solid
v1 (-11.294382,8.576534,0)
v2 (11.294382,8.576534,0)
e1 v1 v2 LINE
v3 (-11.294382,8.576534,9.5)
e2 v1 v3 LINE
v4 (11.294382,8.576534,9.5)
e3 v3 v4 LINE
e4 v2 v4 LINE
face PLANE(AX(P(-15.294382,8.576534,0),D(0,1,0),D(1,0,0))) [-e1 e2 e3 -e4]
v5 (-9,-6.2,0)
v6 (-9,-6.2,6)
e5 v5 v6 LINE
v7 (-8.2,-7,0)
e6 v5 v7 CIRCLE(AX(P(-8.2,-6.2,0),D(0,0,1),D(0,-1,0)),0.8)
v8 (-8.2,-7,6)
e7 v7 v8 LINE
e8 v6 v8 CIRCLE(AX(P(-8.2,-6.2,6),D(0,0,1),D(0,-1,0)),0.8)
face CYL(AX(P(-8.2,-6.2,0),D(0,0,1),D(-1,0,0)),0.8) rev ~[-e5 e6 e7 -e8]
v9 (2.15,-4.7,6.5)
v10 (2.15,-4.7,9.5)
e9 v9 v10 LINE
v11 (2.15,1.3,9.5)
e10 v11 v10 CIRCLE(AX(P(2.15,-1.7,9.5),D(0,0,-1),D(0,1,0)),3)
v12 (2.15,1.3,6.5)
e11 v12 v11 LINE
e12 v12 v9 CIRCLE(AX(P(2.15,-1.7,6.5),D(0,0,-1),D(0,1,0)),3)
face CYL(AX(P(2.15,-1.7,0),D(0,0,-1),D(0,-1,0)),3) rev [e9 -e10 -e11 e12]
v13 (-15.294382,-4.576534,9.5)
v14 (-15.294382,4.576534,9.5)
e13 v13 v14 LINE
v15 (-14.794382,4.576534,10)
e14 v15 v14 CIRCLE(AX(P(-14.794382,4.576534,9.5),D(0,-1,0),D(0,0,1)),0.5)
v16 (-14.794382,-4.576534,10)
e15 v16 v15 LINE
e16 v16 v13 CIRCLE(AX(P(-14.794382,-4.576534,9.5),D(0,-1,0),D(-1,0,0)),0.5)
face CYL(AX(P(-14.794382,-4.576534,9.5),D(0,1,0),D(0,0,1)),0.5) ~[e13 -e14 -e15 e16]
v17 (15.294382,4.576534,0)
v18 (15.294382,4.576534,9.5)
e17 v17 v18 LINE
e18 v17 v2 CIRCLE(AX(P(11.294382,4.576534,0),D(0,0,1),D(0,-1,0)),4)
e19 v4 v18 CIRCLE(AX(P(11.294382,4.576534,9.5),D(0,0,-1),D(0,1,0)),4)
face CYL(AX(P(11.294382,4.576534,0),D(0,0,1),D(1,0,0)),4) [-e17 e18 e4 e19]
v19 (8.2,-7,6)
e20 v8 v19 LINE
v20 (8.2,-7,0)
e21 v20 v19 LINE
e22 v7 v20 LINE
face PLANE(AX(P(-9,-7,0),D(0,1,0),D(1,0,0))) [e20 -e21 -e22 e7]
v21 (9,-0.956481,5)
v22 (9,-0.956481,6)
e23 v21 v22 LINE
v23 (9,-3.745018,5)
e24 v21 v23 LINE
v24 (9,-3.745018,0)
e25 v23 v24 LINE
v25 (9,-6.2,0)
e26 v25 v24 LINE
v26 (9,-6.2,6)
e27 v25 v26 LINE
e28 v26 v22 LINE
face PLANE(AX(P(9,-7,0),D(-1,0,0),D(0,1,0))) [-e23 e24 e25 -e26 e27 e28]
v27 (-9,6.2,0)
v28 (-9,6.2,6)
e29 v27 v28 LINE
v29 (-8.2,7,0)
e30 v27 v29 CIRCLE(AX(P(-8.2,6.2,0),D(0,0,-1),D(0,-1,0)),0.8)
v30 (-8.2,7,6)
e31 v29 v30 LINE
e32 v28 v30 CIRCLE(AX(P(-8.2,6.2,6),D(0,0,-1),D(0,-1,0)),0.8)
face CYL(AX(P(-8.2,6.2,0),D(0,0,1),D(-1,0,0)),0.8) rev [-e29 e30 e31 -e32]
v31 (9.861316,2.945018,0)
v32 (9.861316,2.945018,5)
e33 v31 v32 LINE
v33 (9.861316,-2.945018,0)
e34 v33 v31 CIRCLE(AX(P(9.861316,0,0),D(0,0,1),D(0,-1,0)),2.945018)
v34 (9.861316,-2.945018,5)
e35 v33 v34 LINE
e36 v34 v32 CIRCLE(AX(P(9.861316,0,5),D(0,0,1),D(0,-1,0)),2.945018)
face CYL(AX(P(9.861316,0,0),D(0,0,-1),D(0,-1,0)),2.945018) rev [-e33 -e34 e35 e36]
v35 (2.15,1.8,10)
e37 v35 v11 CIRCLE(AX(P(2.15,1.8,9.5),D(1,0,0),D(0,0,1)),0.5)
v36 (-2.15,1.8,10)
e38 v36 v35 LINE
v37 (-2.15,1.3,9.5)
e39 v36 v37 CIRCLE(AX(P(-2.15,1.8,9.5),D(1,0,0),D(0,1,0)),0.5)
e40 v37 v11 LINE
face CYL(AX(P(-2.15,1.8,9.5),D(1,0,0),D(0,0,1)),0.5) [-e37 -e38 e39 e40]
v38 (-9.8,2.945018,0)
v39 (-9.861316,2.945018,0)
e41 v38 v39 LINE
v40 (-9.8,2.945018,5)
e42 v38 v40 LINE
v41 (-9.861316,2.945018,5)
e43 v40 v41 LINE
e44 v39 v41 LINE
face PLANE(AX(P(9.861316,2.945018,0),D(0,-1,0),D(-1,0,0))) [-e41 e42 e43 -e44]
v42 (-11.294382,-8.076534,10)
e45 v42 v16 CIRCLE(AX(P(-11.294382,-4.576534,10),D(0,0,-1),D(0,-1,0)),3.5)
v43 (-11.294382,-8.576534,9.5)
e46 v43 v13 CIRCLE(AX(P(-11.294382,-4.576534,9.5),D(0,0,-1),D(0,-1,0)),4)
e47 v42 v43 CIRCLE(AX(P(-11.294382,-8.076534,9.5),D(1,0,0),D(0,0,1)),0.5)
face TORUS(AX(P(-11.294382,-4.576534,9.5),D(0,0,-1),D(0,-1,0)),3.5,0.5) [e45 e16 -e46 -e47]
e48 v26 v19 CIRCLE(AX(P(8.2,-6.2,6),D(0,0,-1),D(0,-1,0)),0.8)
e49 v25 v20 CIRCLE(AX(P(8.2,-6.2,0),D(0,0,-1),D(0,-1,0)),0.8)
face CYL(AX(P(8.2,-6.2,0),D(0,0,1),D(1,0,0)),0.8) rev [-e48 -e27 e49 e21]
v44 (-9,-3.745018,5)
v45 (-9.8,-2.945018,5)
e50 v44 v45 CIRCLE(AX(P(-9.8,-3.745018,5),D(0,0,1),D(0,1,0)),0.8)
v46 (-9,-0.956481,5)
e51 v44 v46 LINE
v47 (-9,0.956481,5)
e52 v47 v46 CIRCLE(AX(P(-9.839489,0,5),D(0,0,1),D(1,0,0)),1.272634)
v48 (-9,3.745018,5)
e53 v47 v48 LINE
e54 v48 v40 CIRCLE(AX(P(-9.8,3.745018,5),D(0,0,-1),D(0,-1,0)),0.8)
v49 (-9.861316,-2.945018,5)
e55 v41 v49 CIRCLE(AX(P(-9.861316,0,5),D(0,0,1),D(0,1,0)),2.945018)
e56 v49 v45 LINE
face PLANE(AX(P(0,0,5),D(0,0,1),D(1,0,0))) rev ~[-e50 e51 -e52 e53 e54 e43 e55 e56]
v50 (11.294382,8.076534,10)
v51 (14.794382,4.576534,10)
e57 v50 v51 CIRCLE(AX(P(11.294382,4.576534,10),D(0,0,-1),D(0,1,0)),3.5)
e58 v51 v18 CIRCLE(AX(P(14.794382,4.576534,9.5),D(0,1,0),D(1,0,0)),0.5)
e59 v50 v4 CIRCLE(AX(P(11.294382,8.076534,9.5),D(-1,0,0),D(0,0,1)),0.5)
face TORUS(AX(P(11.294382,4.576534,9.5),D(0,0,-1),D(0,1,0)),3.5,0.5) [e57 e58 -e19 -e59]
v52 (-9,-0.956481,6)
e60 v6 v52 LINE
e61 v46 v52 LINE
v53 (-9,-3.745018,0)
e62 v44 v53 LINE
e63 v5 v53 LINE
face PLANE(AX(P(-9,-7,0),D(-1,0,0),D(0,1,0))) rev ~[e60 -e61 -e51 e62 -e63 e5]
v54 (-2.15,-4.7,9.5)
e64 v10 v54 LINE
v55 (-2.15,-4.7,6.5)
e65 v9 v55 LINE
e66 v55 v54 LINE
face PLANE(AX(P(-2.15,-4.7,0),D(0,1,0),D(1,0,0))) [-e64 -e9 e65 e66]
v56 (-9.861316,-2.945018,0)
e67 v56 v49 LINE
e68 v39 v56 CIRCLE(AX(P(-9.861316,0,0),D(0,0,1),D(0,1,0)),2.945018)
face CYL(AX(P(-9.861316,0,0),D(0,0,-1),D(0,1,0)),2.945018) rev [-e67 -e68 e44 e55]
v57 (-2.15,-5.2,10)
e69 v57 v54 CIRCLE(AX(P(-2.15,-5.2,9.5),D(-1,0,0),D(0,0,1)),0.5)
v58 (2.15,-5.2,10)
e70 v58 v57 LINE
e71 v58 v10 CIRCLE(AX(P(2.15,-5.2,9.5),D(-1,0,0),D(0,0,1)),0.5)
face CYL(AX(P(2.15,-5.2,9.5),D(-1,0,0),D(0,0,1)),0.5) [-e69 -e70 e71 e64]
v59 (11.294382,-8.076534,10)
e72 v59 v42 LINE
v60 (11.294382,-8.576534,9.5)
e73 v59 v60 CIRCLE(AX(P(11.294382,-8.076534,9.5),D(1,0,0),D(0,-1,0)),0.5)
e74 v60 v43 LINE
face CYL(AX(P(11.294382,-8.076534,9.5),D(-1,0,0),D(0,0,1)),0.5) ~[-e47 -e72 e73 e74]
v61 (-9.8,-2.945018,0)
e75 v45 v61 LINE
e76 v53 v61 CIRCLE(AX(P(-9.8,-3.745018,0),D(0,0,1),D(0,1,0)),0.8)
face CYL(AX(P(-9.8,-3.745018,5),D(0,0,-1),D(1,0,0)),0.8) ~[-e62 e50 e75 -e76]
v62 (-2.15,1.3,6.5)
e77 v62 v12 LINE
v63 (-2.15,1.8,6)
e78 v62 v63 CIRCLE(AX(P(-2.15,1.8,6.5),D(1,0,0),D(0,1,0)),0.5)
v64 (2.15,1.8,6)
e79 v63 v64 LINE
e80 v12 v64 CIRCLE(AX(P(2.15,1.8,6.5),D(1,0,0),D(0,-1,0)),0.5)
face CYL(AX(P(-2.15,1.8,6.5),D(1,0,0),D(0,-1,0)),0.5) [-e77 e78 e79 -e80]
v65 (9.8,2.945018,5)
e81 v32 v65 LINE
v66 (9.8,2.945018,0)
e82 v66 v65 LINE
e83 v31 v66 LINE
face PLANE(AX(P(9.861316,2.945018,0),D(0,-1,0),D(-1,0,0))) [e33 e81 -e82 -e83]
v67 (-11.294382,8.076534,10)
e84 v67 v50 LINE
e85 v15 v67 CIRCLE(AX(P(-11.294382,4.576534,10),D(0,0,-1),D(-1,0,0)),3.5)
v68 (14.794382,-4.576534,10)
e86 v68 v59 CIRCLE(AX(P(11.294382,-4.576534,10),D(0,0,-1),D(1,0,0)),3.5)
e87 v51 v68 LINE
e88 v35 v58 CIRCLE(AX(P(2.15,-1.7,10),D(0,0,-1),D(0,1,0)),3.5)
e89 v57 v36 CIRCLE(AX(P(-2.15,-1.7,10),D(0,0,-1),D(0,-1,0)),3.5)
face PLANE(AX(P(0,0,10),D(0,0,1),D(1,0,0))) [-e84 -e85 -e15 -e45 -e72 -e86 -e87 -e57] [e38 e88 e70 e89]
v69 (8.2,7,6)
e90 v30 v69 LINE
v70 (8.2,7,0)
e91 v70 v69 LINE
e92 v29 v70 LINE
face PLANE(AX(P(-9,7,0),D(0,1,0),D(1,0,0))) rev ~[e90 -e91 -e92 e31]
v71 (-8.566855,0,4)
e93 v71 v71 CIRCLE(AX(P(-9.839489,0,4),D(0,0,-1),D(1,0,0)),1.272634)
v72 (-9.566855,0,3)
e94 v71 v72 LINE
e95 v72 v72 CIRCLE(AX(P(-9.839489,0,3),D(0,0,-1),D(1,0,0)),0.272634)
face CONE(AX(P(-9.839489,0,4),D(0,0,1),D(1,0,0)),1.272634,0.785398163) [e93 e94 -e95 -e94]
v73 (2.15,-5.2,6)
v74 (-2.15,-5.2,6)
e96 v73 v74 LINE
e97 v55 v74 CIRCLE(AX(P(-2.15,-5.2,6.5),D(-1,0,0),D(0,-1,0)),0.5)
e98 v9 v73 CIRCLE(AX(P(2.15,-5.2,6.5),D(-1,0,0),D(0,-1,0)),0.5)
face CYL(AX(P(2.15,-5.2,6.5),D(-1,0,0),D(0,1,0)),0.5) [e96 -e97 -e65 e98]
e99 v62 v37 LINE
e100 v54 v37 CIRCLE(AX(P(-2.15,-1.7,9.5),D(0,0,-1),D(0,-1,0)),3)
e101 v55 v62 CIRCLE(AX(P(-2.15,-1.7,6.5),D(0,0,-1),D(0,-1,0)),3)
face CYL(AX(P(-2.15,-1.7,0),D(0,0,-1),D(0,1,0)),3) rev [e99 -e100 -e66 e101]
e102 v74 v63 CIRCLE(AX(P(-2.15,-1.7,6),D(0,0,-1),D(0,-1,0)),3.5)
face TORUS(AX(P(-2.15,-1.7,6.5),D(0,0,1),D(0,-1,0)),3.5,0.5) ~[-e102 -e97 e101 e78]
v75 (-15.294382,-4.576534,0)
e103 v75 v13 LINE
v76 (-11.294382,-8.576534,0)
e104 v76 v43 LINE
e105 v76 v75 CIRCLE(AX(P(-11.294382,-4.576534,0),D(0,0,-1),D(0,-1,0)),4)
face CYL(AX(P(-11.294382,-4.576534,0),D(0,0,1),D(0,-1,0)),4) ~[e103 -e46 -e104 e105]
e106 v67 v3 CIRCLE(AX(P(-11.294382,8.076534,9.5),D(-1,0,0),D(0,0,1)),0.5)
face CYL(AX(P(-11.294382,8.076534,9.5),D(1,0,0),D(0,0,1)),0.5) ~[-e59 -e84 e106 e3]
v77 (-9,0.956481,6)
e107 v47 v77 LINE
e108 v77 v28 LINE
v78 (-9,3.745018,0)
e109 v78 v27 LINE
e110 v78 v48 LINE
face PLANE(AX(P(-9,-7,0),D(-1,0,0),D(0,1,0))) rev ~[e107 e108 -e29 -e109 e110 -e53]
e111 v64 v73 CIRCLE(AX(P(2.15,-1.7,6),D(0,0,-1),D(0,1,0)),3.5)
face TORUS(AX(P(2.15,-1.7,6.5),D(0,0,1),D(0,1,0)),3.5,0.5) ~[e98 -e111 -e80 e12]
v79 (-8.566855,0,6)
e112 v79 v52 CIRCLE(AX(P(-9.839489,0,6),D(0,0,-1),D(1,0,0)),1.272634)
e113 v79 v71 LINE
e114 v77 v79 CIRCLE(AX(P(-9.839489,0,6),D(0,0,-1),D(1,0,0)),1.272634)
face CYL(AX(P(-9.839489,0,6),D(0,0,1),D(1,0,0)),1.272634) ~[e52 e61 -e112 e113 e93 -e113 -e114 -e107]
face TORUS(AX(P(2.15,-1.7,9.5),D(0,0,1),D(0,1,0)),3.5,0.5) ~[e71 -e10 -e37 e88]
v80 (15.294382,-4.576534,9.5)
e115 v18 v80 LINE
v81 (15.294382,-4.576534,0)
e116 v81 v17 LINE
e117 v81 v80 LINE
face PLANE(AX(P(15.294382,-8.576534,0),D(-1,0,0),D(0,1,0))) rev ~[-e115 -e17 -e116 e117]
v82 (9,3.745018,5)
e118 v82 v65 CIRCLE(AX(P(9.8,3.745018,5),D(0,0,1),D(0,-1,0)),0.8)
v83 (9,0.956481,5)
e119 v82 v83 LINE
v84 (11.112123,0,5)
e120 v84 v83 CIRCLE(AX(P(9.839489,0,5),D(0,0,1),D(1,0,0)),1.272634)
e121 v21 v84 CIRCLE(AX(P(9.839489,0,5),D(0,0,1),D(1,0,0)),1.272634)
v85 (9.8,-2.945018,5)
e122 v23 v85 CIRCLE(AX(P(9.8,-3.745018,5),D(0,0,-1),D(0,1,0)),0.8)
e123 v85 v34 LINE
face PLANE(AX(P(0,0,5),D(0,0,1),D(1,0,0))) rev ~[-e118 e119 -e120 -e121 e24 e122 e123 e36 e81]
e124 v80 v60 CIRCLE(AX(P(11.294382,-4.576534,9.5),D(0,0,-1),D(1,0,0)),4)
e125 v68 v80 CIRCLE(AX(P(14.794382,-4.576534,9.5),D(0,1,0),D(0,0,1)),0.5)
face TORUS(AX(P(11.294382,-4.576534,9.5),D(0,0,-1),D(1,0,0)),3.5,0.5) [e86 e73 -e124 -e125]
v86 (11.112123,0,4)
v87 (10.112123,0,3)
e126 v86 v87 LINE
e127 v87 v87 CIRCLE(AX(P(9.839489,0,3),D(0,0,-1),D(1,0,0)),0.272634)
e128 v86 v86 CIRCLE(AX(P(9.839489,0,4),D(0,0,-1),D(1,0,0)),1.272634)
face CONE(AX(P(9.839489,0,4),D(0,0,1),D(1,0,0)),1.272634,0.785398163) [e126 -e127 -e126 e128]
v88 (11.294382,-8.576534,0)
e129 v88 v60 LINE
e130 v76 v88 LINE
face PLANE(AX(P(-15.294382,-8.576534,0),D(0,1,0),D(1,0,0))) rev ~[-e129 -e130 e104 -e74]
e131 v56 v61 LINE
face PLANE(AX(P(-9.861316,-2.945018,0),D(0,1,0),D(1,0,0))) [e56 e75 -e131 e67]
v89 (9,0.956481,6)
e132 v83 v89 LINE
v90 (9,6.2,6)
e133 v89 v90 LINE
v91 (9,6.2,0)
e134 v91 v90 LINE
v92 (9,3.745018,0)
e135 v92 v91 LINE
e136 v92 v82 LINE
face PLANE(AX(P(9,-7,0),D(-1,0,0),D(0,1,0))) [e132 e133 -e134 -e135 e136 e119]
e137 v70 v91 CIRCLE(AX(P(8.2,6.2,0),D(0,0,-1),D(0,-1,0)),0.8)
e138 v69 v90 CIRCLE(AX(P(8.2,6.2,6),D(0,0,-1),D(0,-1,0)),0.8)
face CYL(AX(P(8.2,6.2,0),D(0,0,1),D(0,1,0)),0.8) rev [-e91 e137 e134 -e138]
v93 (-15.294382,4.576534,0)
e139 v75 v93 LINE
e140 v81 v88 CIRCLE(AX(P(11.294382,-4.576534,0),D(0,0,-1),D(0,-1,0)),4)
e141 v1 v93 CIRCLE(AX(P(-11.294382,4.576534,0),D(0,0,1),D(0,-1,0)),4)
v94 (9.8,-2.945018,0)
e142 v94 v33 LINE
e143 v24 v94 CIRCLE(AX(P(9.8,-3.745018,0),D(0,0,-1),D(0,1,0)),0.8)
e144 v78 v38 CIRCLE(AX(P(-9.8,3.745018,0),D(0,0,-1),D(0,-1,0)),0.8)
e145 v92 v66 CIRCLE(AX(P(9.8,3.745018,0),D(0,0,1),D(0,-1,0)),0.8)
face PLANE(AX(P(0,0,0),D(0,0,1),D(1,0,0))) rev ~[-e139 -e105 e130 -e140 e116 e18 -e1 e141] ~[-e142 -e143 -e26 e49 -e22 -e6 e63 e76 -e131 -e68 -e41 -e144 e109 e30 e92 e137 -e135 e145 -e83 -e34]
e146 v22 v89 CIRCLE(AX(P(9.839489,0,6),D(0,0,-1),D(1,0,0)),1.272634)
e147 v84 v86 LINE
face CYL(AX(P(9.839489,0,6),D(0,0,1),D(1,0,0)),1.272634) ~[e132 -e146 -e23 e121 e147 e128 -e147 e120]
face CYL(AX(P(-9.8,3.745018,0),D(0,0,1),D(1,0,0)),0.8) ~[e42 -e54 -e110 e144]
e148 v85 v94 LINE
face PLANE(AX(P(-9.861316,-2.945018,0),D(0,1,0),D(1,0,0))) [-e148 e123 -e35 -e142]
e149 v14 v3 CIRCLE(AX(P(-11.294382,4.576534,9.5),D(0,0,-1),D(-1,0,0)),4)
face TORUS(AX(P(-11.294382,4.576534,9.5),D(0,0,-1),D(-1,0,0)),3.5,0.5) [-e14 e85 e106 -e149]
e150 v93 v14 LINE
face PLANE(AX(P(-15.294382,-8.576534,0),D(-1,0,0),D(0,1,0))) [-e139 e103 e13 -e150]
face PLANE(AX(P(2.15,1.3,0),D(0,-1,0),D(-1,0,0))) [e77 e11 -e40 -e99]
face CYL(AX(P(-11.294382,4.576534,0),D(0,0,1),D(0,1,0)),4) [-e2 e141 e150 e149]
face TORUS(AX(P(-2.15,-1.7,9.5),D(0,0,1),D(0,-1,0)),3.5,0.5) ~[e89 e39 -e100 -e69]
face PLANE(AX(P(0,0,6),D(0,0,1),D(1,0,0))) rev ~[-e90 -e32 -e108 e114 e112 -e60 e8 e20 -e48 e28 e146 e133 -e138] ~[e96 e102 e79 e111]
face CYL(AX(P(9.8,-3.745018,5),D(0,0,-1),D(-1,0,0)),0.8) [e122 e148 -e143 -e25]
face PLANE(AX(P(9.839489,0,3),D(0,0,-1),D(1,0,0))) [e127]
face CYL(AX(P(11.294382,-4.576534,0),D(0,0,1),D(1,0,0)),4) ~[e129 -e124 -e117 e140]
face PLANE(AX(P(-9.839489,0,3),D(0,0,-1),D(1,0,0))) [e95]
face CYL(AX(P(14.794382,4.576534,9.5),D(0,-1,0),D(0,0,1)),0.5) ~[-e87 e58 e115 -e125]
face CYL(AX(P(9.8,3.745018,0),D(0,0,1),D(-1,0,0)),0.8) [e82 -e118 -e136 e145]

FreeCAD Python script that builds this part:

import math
import FreeCAD as App
import Part
import Sketcher

V = App.Vector


def edges_at(feature, points):
    """Names of the edges that pass closest to the given points."""
    edges = feature.Shape.Edges
    near = lambda p: min(range(len(edges)), key=lambda i: edges[i].distToShape(Part.Vertex(*p))[0])
    return sorted({f"Edge{near(p) + 1}" for p in points})

doc = App.newDocument("Part")
params = doc.addObject("Spreadsheet::Sheet", "Params")
for row, (alias, value) in enumerate([
    ("pad1_length", "10 mm"),
    ("sketch2_width", "18 mm"),
    ("sketch2_height", "14 mm"),
    ("pocket1_length", "6 mm"),
    ("pocket2_length", "5 mm"),
    ("sketch4_radius", "3 mm"),
    ("sketch4_width", "4.3 mm"),
    ("pad2_length", "3 mm"),
    ("chamfer_size", "1 mm"),
    ("fillet_radius", "0.8 mm"),
    ("fillet2_radius", "4 mm"),
    ("fillet3_radius", "0.5 mm"),
], start=1):
    params.set(f"A{row}", alias)
    params.set(f"B{row}", "=" + value)
    params.setAlias(f"B{row}", alias)

body = doc.addObject("PartDesign::Body", "Body")

# Sketch on XY plane
sketch1 = doc.addObject("Sketcher::SketchObject", "Sketch")
body.addObject(sketch1)
sketch1.AttachmentSupport = (doc.XY_Plane, [""])
sketch1.MapMode = "FlatFace"
sketch1.addGeometry([
    Part.LineSegment(V(-15, 9, 0), V(-15, -9, 0)),
    Part.LineSegment(V(-15, -9, 0), V(15, -9, 0)),
    Part.LineSegment(V(15, -9, 0), V(15, 9, 0)),
    Part.LineSegment(V(15, 9, 0), V(-15, 9, 0)),
], False)
sketch1.addConstraint([
    Sketcher.Constraint("Coincident", 0, 2, 1, 1),
    Sketcher.Constraint("Coincident", 1, 2, 2, 1),
    Sketcher.Constraint("Coincident", 2, 2, 3, 1),
    Sketcher.Constraint("Coincident", 3, 2, 0, 1),
    Sketcher.Constraint("Vertical", 0),
    Sketcher.Constraint("Horizontal", 1),
    Sketcher.Constraint("Vertical", 2),
    Sketcher.Constraint("Horizontal", 3),
    Sketcher.Constraint("Symmetric", 0, 2, 2, 2, -1, 1),
    Sketcher.Constraint("DistanceY", 0, 2, 0, 1, 17.153068),
    Sketcher.Constraint("DistanceX", 1, 1, 1, 2, 30.588764),
])
pad1 = doc.addObject("PartDesign::Pad", "Pad")
body.addObject(pad1)
pad1.Profile = sketch1
pad1.setExpression("Length", "Params.pad1_length")

# Sketch on XY plane
sketch2 = doc.addObject("Sketcher::SketchObject", "Sketch001")
body.addObject(sketch2)
sketch2.AttachmentSupport = (doc.XY_Plane, [""])
sketch2.MapMode = "FlatFace"
sketch2.addGeometry([
    Part.LineSegment(V(-9, 7, 0), V(-9, -7, 0)),
    Part.LineSegment(V(-9, -7, 0), V(9, -7, 0)),
    Part.LineSegment(V(9, -7, 0), V(9, 7, 0)),
    Part.LineSegment(V(9, 7, 0), V(-9, 7, 0)),
], False)
sketch2.addConstraint([
    Sketcher.Constraint("Coincident", 0, 2, 1, 1),
    Sketcher.Constraint("Coincident", 1, 2, 2, 1),
    Sketcher.Constraint("Coincident", 2, 2, 3, 1),
    Sketcher.Constraint("Coincident", 3, 2, 0, 1),
    Sketcher.Constraint("Vertical", 0),
    Sketcher.Constraint("Horizontal", 1),
    Sketcher.Constraint("Vertical", 2),
    Sketcher.Constraint("Horizontal", 3),
    Sketcher.Constraint("Symmetric", 0, 2, 2, 2, -1, 1),
    Sketcher.Constraint("DistanceX", 1, 1, 1, 2, 18.0),
    Sketcher.Constraint("DistanceY", 0, 2, 0, 1, 14.0),
])
sketch2.setExpression("Constraints[9]", "Params.sketch2_width")
sketch2.setExpression("Constraints[10]", "Params.sketch2_height")
pocket1 = doc.addObject("PartDesign::Pocket", "Pocket")
body.addObject(pocket1)
pocket1.Profile = sketch2
pocket1.setExpression("Length", "Params.pocket1_length")
pocket1.Reversed = True

# Sketch on XY plane
sketch3 = doc.addObject("Sketcher::SketchObject", "Sketch002")
body.addObject(sketch3)
sketch3.AttachmentSupport = (doc.XY_Plane, [""])
sketch3.MapMode = "FlatFace"
sketch3.addGeometry([
    Part.ArcOfCircle(Part.Circle(V(-9.9, 0, 0), V(0, 0, 1), 2.9), math.radians(90), math.radians(270)),
    Part.LineSegment(V(-9.9, -2.9, 0), V(9.9, -2.9, 0)),
    Part.ArcOfCircle(Part.Circle(V(9.9, 0, 0), V(0, 0, 1), 2.9), math.radians(-90), math.radians(90)),
    Part.LineSegment(V(9.9, 2.9, 0), V(-9.9, 2.9, 0)),
], False)
sketch3.addConstraint([
    Sketcher.Constraint("Tangent", 0, 2, 1, 1),
    Sketcher.Constraint("Tangent", 1, 2, 2, 1),
    Sketcher.Constraint("Tangent", 2, 2, 3, 1),
    Sketcher.Constraint("Tangent", 3, 2, 0, 1),
    Sketcher.Constraint("Horizontal", 1),
    Sketcher.Constraint("Horizontal", 3),
    Sketcher.Constraint("Symmetric", 0, 3, 2, 3, -1, 1),
    Sketcher.Constraint("Radius", 0, 2.945018),
    Sketcher.Constraint("DistanceX", 1, 1, 1, 2, 19.722632),
])
pocket2 = doc.addObject("PartDesign::Pocket", "Pocket001")
body.addObject(pocket2)
pocket2.Profile = sketch3
pocket2.setExpression("Length", "Params.pocket2_length")
pocket2.Reversed = True

# Sketch on XY plane
sketch4 = doc.addObject("Sketcher::SketchObject", "Sketch003")
body.addObject(sketch4)
sketch4.AttachmentSupport = (doc.XY_Plane, [""])
sketch4.MapMode = "FlatFace"
sketch4.addGeometry([
    Part.ArcOfCircle(Part.Circle(V(-2.1, -1.7, 0), V(0, 0, 1), 3), math.radians(90), math.radians(270)),
    Part.LineSegment(V(-2.1, -4.7, 0), V(2.1, -4.7, 0)),
    Part.ArcOfCircle(Part.Circle(V(2.1, -1.7, 0), V(0, 0, 1), 3), math.radians(-90), math.radians(90)),
    Part.LineSegment(V(2.1, 1.3, 0), V(-2.1, 1.3, 0)),
], False)
sketch4.addConstraint([
    Sketcher.Constraint("Tangent", 0, 2, 1, 1),
    Sketcher.Constraint("Tangent", 1, 2, 2, 1),
    Sketcher.Constraint("Tangent", 2, 2, 3, 1),
    Sketcher.Constraint("Tangent", 3, 2, 0, 1),
    Sketcher.Constraint("Horizontal", 1),
    Sketcher.Constraint("Horizontal", 3),
    Sketcher.Constraint("Radius", 0, 3.0),
    Sketcher.Constraint("DistanceX", 1, 1, 1, 2, 4.3),
    Sketcher.Constraint("DistanceY", 0, 3, -1, 1, 1.7),
    Sketcher.Constraint("DistanceX", 0, 3, -1, 1, 2.15),
])
sketch4.setExpression("Constraints[6]", "Params.sketch4_radius")
sketch4.setExpression("Constraints[7]", "Params.sketch4_width")
pocket3 = doc.addObject("PartDesign::Pocket", "Pocket002")
body.addObject(pocket3)
pocket3.Profile = sketch4
pocket3.Type = "ThroughAll"
pocket3.Reversed = True

# Sketch on XY plane
sketch5 = doc.addObject("Sketcher::SketchObject", "Sketch004")
body.addObject(sketch5)
sketch5.AttachmentSupport = (doc.XY_Plane, [""])
sketch5.MapMode = "FlatFace"
sketch5.AttachmentOffset = App.Placement(V(0, 0, 6), App.Rotation())
sketch5.addGeometry([
    Part.Circle(V(-9.8, 0, 0), V(0, 0, 1), 1.3),
    Part.Circle(V(9.8, 0, 0), V(0, 0, 1), 1.3),
], False)
sketch5.addConstraint([
    Sketcher.Constraint("Equal", 0, 1),
    Sketcher.Constraint("Symmetric", 0, 3, 1, 3, -1, 1),
    Sketcher.Constraint("PointOnObject", 0, 3, -1),
    Sketcher.Constraint("Diameter", 0, 2.545268),
    Sketcher.Constraint("DistanceX", 0, 3, -1, 1, 9.839489),
])
pad2 = doc.addObject("PartDesign::Pad", "Pad001")
body.addObject(pad2)
pad2.Profile = sketch5
pad2.setExpression("Length", "Params.pad2_length")
pad2.Reversed = True
doc.recompute()

chamfer = doc.addObject("PartDesign::Chamfer", "Chamfer")
body.addObject(chamfer)
chamfer.Base = (pad2, edges_at(pad2, [(8.567, 0, 3), (-11.112, 0, 3)]))
chamfer.setExpression("Size", "Params.chamfer_size")
doc.recompute()

fillet = doc.addObject("PartDesign::Fillet", "Fillet")
body.addObject(fillet)
fillet.Base = (chamfer, edges_at(chamfer, [
    (9, 2.945, 2.5),
    (9, -2.945, 2.5),
    (9, 7, 3),
    (-9, 2.945, 2.5),
    (-9, -2.945, 2.5),
    (-9, -7, 3),
    (9, -7, 3),
    (-9, 7, 3),
]))
fillet.setExpression("Radius", "Params.fillet_radius")
doc.recompute()

fillet2 = doc.addObject("PartDesign::Fillet", "Fillet001")
body.addObject(fillet2)
fillet2.Base = (fillet, edges_at(fillet, [
    (-15.294, -8.577, 5),
    (-15.294, 8.577, 5),
    (15.294, 8.577, 5),
    (15.294, -8.577, 5),
]))
fillet2.setExpression("Radius", "Params.fillet2_radius")
doc.recompute()

fillet3 = doc.addObject("PartDesign::Fillet", "Fillet002")
body.addObject(fillet3)
fillet3.Base = (fillet2, edges_at(fillet2, [
    (0, 8.577, 10),
    (-14.123, 7.405, 10),
    (14.123, 7.405, 10),
    (-15.294, 0, 10),
    (15.294, 0, 10),
    (-14.123, -7.405, 10),
    (14.123, -7.405, 10),
    (0, -8.577, 10),
    (0, -4.7, 10),
    (5.15, -1.7, 10),
    (0, 1.3, 10),
    (-5.15, -1.7, 10),
    (-5.15, -1.7, 6),
]))
fillet3.setExpression("Radius", "Params.fillet3_radius")

doc.recompute()
